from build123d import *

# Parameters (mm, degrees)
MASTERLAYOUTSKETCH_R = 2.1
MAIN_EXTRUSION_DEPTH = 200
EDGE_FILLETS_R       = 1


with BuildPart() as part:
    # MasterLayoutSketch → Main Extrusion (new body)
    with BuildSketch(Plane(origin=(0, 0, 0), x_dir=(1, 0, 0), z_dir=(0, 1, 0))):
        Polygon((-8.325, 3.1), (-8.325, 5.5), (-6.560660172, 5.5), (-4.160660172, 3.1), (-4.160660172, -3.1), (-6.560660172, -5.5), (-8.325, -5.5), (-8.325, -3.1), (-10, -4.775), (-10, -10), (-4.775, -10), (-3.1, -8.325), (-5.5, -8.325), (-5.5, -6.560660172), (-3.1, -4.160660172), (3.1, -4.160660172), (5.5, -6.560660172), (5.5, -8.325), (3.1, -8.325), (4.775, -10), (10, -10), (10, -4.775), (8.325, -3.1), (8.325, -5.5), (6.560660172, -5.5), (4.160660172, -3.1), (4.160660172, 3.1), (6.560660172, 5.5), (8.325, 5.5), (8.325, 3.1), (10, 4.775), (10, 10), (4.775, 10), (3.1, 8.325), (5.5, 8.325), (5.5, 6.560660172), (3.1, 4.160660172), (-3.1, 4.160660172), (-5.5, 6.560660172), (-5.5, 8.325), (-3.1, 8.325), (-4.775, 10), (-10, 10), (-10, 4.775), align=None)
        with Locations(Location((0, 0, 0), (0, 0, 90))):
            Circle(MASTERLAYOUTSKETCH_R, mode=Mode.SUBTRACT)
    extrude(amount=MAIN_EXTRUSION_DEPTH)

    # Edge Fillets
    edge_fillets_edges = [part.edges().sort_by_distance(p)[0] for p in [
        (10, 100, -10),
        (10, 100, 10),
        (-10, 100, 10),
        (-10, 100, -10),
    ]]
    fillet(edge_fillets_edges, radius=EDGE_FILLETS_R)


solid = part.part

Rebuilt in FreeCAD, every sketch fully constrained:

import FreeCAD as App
import Part
import Sketcher
from FreeCAD import Vector
Q = App.Units.Quantity


def edges_at(feature, points):
    """Names of the edges that pass closest to the given points."""
    edges = feature.Shape.Edges
    near = lambda p: min(range(len(edges)), key=lambda i: edges[i].distToShape(Part.Vertex(*p))[0])
    return sorted({f"Edge{near(p) + 1}" for p in points})


def add_polygon(sketch, points):
    """Adds a closed chain of lines whose ends are joined by coincident constraints."""
    first, n = sketch.GeometryCount, len(points)
    for a, b in zip(points, points[1:] + points[:1]):
        sketch.addGeometry(Part.LineSegment(App.Vector(*a, 0), App.Vector(*b, 0)), False)
    for i in range(n):
        sketch.addConstraint(Sketcher.Constraint("Coincident", first + i, 2, first + (i + 1) % n, 1))

doc = App.newDocument("Part")
params = doc.addObject("Spreadsheet::Sheet", "Params")
for row, (alias, value) in enumerate([
    ("sketch1_diameter", "4.2 mm"),
    ("sketch1_width", "2.4 mm"),
    ("sketch1_width2", "6.2 mm"),
    ("pad1_length", "200 mm"),
    ("fillet_radius", "1 mm"),
], start=1):
    params.set(f"A{row}", alias)
    params.set(f"B{row}", "=" + value)
    params.setAlias(f"B{row}", alias)

body = doc.addObject("PartDesign::Body", "Body")

sketch1 = body.newObject("Sketcher::SketchObject", "Sketch")
sketch1.AttachmentSupport = (doc.getObject("XZ_Plane"), [""])
sketch1.MapMode = "FlatFace"
add_polygon(sketch1, [(-8.325, -3.1), (-8.325, -5.5), (-6.56066, -5.5), (-4.16066, -3.1), (-4.16066, 3.1), (-6.56066, 5.5), (-8.325, 5.5), (-8.325, 3.1), (-10, 4.775), (-10, 10), (-4.775, 10), (-3.1, 8.325), (-5.5, 8.325), (-5.5, 6.56066), (-3.1, 4.16066), (3.1, 4.16066), (5.5, 6.56066), (5.5, 8.325), (3.1, 8.325), (4.775, 10), (10, 10), (10, 4.775), (8.325, 3.1), (8.325, 5.5), (6.56066, 5.5), (4.16066, 3.1), (4.16066, -3.1), (6.56066, -5.5), (8.325, -5.5), (8.325, -3.1), (10, -4.775), (10, -10), (4.775, -10), (3.1, -8.325), (5.5, -8.325), (5.5, -6.56066), (3.1, -4.16066), (-3.1, -4.16066), (-5.5, -6.56066), (-5.5, -8.325), (-3.1, -8.325), (-4.775, -10), (-10, -10), (-10, -4.775)])
sketch1.addGeometry(Part.Circle(Vector(0, 0, 0), Vector(0, 0, 1), 2.1), False)
sketch1.addConstraint(Sketcher.Constraint("Vertical", 0))
sketch1.addConstraint(Sketcher.Constraint("Horizontal", 1))
sketch1.addConstraint(Sketcher.Constraint("Vertical", 3))
sketch1.addConstraint(Sketcher.Constraint("Horizontal", 5))
sketch1.addConstraint(Sketcher.Constraint("Vertical", 6))
sketch1.addConstraint(Sketcher.Constraint("Vertical", 8))
sketch1.addConstraint(Sketcher.Constraint("Horizontal", 9))
sketch1.addConstraint(Sketcher.Constraint("Horizontal", 11))
sketch1.addConstraint(Sketcher.Constraint("Vertical", 12))
sketch1.addConstraint(Sketcher.Constraint("Horizontal", 14))
sketch1.addConstraint(Sketcher.Constraint("Vertical", 16))
sketch1.addConstraint(Sketcher.Constraint("Horizontal", 17))
sketch1.addConstraint(Sketcher.Constraint("Horizontal", 19))
sketch1.addConstraint(Sketcher.Constraint("Vertical", 20))
sketch1.addConstraint(Sketcher.Constraint("Vertical", 22))
sketch1.addConstraint(Sketcher.Constraint("Horizontal", 23))
sketch1.addConstraint(Sketcher.Constraint("Vertical", 25))
sketch1.addConstraint(Sketcher.Constraint("Horizontal", 27))
sketch1.addConstraint(Sketcher.Constraint("Vertical", 28))
sketch1.addConstraint(Sketcher.Constraint("Vertical", 30))
sketch1.addConstraint(Sketcher.Constraint("Horizontal", 31))
sketch1.addConstraint(Sketcher.Constraint("Horizontal", 33))
sketch1.addConstraint(Sketcher.Constraint("Vertical", 34))
sketch1.addConstraint(Sketcher.Constraint("Horizontal", 36))
sketch1.addConstraint(Sketcher.Constraint("Vertical", 38))
sketch1.addConstraint(Sketcher.Constraint("Horizontal", 39))
sketch1.addConstraint(Sketcher.Constraint("Horizontal", 41))
sketch1.addConstraint(Sketcher.Constraint("Vertical", 42))
sketch1.addConstraint(Sketcher.Constraint("Coincident", 44, 3, -1, 1))
sketch1.addConstraint(Sketcher.Constraint("Symmetric", 0, 2, 22, 2, -1, 1))
sketch1.addConstraint(Sketcher.Constraint("Symmetric", 2, 2, 24, 2, -1, 1))
sketch1.addConstraint(Sketcher.Constraint("Symmetric", 4, 2, 26, 2, -1, 1))
sketch1.addConstraint(Sketcher.Constraint("Symmetric", 6, 2, 28, 2, -1, 1))
sketch1.addConstraint(Sketcher.Constraint("Symmetric", 7, 2, 29, 2, -1, 1))
sketch1.addConstraint(Sketcher.Constraint("Symmetric", 9, 2, 31, 2, -1, 1))
sketch1.addConstraint(Sketcher.Constraint("Symmetric", 10, 2, 32, 2, -1, 1))
sketch1.addConstraint(Sketcher.Constraint("Symmetric", 12, 2, 34, 2, -1, 1))
sketch1.addConstraint(Sketcher.Constraint("Symmetric", 13, 2, 35, 2, -1, 1))
sketch1.addConstraint(Sketcher.Constraint("Symmetric", 15, 2, 37, 2, -1, 1))
sketch1.addConstraint(Sketcher.Constraint("Symmetric", 17, 2, 39, 2, -1, 1))
sketch1.addConstraint(Sketcher.Constraint("Symmetric", 18, 2, 40, 2, -1, 1))
sketch1.addConstraint(Sketcher.Constraint("Symmetric", 20, 2, 42, 2, -1, 1))
sketch1.addConstraint(Sketcher.Constraint("Symmetric", 12, 2, 15, 2, -2))
sketch1.addConstraint(Sketcher.Constraint("Symmetric", 10, 2, 17, 2, -2))
sketch1.addConstraint(Sketcher.Constraint("Symmetric", 9, 2, 18, 2, -2))
sketch1.addConstraint(Sketcher.Constraint("Symmetric", 7, 2, 20, 2, -2))
sketch1.addConstraint(Sketcher.Constraint("Symmetric", 6, 2, 21, 2, -2))
sketch1.addConstraint(Sketcher.Constraint("Symmetric", 4, 2, 23, 2, -2))
sketch1.addConstraint(Sketcher.Constraint("Perpendicular", 2, 4))
sketch1.addConstraint(Sketcher.Constraint("Parallel", 4, 7))
sketch1.addConstraint(Sketcher.Constraint("Parallel", 7, 10))
sketch1.addConstraint(Sketcher.Constraint("Parallel", 10, 13))
sketch1.addConstraint(Sketcher.Constraint("Perpendicular", 13, 15))
sketch1.addConstraint(Sketcher.Constraint("Parallel", 15, 18))
sketch1.addConstraint(Sketcher.Constraint("Parallel", 21, 24))
sketch1.addConstraint(Sketcher.Constraint("Perpendicular", 24, 26))
sketch1.addConstraint(Sketcher.Constraint("Perpendicular", 35, 37))
sketch1.addConstraint(Sketcher.Constraint("Parallel", 40, 43))
sketch1.addConstraint(Sketcher.Constraint("Horizontal", 3, 2, 6, 2))
sketch1.addConstraint(Sketcher.Constraint("Vertical", 10, 2, 13, 2))
sketch1.addConstraint(Sketcher.Constraint("Equal", 39, 0))
sketch1.addConstraint(Sketcher.Constraint("Equal", 36, 3))
sketch1.addConstraint(Sketcher.Constraint("Equal", 41, 8))
sketch1.addConstraint(Sketcher.Constraint("Equal", 27, 12))
sketch1.addConstraint(Sketcher.Constraint("Equal", 7, 10))
sketch1.addConstraint(Sketcher.Constraint("Diameter", 44, Q("4.2 mm")))
sketch1.addConstraint(Sketcher.Constraint("DistanceX", 11, 2, 11, 1, Q("2.4 mm")))
sketch1.addConstraint(Sketcher.Constraint("DistanceX", 14, 1, 14, 2, Q("6.2 mm")))
sketch1.addConstraint(Sketcher.Constraint("DistanceX", 7, 2, -1, 1, Q("10 mm")))
sketch1.addConstraint(Sketcher.Constraint("DistanceX", 9, 1, 9, 2, Q("5.225 mm")))
sketch1.addConstraint(Sketcher.Constraint("DistanceX", 1, 1, 1, 2, Q("1.76434 mm")))
sketch1.setExpression("Constraints[109]", "Params.sketch1_diameter")
sketch1.setExpression("Constraints[110]", "Params.sketch1_width")
sketch1.setExpression("Constraints[111]", "Params.sketch1_width2")
pad1 = body.newObject("PartDesign::Pad", "Pad")
pad1.Profile = sketch1
pad1.setExpression("Length", "Params.pad1_length")
pad1.Reversed = True
doc.recompute()

fillet = body.newObject("PartDesign::Fillet", "Fillet")
fillet.Base = (pad1, edges_at(pad1, [
    (10, 100, -10),
    (10, 100, 10),
    (-10, 100, 10),
    (-10, 100, -10),
]))
fillet.setExpression("Radius", "Params.fillet_radius")

doc.recompute()
